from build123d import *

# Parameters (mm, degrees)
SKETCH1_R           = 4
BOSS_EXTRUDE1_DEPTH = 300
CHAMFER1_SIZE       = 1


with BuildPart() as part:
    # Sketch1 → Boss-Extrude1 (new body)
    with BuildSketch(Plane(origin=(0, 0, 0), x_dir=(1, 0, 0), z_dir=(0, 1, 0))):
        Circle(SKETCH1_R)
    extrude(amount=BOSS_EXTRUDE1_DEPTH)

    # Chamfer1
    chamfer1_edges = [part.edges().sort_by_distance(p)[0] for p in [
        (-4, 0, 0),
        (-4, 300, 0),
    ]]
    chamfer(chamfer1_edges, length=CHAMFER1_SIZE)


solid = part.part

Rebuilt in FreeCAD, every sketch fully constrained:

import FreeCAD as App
import Part
import Sketcher

V = App.Vector
Q = App.Units.Quantity


def edges_at(feature, points):
    """Names of the edges that pass closest to the given points."""
    edges = feature.Shape.Edges
    near = lambda p: min(range(len(edges)), key=lambda i: edges[i].distToShape(Part.Vertex(*p))[0])
    return sorted({f"Edge{near(p) + 1}" for p in points})

doc = App.newDocument("Part")
body = doc.addObject("PartDesign::Body", "Body")

# Sketch on XZ plane
sketch1 = body.newObject("Sketcher::SketchObject", "Sketch")
sketch1.AttachmentSupport = (doc.getObject("XZ_Plane"), [""])
sketch1.MapMode = "FlatFace"
sketch1.addGeometry(Part.Circle(V(0, 0, 0), V(0, 0, 1), 4), False)
sketch1.addConstraint(Sketcher.Constraint("Coincident", 0, 3, -1, 1))
sketch1.addConstraint(Sketcher.Constraint("Diameter", 0, Q("8 mm")))
pad1 = body.newObject("PartDesign::Pad", "Pad")
pad1.Profile = sketch1
pad1.Length = 300
pad1.Reversed = True
doc.recompute()

chamfer = body.newObject("PartDesign::Chamfer", "Chamfer")
chamfer.Base = (pad1, edges_at(pad1, [(-4, 0, 0), (-4, 300, 0)]))
chamfer.Size = 1

doc.recompute()
